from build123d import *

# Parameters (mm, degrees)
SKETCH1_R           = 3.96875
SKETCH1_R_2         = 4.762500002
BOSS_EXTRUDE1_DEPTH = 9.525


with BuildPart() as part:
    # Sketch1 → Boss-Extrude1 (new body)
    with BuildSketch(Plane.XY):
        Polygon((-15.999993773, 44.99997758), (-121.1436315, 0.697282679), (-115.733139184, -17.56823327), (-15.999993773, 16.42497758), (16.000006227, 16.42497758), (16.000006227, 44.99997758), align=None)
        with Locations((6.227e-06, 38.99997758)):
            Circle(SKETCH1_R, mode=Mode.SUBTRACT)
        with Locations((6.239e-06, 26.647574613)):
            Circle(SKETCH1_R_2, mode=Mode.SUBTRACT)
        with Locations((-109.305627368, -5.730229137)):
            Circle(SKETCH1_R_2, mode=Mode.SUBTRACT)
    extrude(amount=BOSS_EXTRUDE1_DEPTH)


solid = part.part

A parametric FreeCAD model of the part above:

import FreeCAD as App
import Part
import Sketcher
Q = App.Units.Quantity

doc = App.newDocument("Part")
body = doc.addObject("PartDesign::Body", "Body")

# Sketch on XY plane
sketch1 = body.newObject("Sketcher::SketchObject", "Sketch")
sketch1.AttachmentSupport = (doc.getObject("XY_Plane"), [""])
sketch1.MapMode = "FlatFace"
sketch1.addGeometry([
    Part.LineSegment(App.Vector(-15.999994, 44.999978, 0), App.Vector(-121.143631, 0.697283, 0)),  # 0
    Part.LineSegment(App.Vector(-121.143631, 0.697283, 0), App.Vector(-115.733139, -17.568233, 0)),  # 1
    Part.LineSegment(App.Vector(-115.733139, -17.568233, 0), App.Vector(-15.999994, 16.424978, 0)),  # 2
    Part.LineSegment(App.Vector(-15.999994, 16.424978, 0), App.Vector(16.000006, 16.424978, 0)),  # 3
    Part.LineSegment(App.Vector(16.000006, 16.424978, 0), App.Vector(16.000006, 44.999978, 0)),  # 4
    Part.LineSegment(App.Vector(16.000006, 44.999978, 0), App.Vector(-15.999994, 44.999978, 0)),  # 5
    Part.Circle(App.Vector(-109.305627, -5.730229, 0), App.Vector(0, 0, 1), 4.7625),  # 6
    Part.Circle(App.Vector(0.000006, 26.647575, 0), App.Vector(0, 0, 1), 4.7625),  # 7
    Part.Circle(App.Vector(0.000006, 38.999978, 0), App.Vector(0, 0, 1), 3.96875),  # 8
], False)
sketch1.addConstraint([
    Sketcher.Constraint("Coincident", 0, 2, 1, 1),
    Sketcher.Constraint("Coincident", 1, 2, 2, 1),
    Sketcher.Constraint("Coincident", 2, 2, 3, 1),
    Sketcher.Constraint("Coincident", 3, 2, 4, 1),
    Sketcher.Constraint("Coincident", 4, 2, 5, 1),
    Sketcher.Constraint("Coincident", 5, 2, 0, 1),
    Sketcher.Constraint("Horizontal", 3),
    Sketcher.Constraint("Vertical", 4),
    Sketcher.Constraint("Horizontal", 5),
    Sketcher.Constraint("Equal", 6, 7),
    Sketcher.Constraint("Vertical", 7, 3, 8, 3),
    Sketcher.Constraint("Vertical", 2, 2, 5, 2),
    Sketcher.Constraint("Diameter", 6, Q("0.375 in")),
    Sketcher.Constraint("Diameter", 8, Q("0.3125 in")),
    Sketcher.Constraint("Angle", 1, Q("-73.5 deg")),
    Sketcher.Constraint("Distance", 1, Q("0.75 in")),
    Sketcher.Constraint("DistanceY", 4, 1, 4, 2, Q("1.125 in")),
    Sketcher.Constraint("DistanceX", 3, 1, 3, 2, Q("32 mm")),
    Sketcher.Constraint("DistanceX", 2, 2, 7, 3, Q("16 mm")),
    Sketcher.Constraint("DistanceY", 2, 2, 8, 3, Q("22.575 mm")),
    Sketcher.Constraint("Distance", 0, Q("114.096071 mm")),
    Sketcher.Constraint("Distance", 2, Q("105.367161 mm")),
    Sketcher.Constraint("DistanceY", 6, 3, -1, 1, Q("5.730229 mm")),
    Sketcher.Constraint("DistanceX", 0, 2, -1, 1, Q("121.143631 mm")),
    Sketcher.Constraint("DistanceY", 6, 3, 0, 2, Q("6.427512 mm")),
    Sketcher.Constraint("DistanceY", 0, 2, 7, 3, Q("25.950292 mm")),
    Sketcher.Constraint("DistanceX", 1, 2, 6, 3, Q("6.427512 mm")),
])
pad1 = body.newObject("PartDesign::Pad", "Pad")
pad1.Profile = sketch1
pad1.Length = Q("0.375 in")

doc.recompute()
